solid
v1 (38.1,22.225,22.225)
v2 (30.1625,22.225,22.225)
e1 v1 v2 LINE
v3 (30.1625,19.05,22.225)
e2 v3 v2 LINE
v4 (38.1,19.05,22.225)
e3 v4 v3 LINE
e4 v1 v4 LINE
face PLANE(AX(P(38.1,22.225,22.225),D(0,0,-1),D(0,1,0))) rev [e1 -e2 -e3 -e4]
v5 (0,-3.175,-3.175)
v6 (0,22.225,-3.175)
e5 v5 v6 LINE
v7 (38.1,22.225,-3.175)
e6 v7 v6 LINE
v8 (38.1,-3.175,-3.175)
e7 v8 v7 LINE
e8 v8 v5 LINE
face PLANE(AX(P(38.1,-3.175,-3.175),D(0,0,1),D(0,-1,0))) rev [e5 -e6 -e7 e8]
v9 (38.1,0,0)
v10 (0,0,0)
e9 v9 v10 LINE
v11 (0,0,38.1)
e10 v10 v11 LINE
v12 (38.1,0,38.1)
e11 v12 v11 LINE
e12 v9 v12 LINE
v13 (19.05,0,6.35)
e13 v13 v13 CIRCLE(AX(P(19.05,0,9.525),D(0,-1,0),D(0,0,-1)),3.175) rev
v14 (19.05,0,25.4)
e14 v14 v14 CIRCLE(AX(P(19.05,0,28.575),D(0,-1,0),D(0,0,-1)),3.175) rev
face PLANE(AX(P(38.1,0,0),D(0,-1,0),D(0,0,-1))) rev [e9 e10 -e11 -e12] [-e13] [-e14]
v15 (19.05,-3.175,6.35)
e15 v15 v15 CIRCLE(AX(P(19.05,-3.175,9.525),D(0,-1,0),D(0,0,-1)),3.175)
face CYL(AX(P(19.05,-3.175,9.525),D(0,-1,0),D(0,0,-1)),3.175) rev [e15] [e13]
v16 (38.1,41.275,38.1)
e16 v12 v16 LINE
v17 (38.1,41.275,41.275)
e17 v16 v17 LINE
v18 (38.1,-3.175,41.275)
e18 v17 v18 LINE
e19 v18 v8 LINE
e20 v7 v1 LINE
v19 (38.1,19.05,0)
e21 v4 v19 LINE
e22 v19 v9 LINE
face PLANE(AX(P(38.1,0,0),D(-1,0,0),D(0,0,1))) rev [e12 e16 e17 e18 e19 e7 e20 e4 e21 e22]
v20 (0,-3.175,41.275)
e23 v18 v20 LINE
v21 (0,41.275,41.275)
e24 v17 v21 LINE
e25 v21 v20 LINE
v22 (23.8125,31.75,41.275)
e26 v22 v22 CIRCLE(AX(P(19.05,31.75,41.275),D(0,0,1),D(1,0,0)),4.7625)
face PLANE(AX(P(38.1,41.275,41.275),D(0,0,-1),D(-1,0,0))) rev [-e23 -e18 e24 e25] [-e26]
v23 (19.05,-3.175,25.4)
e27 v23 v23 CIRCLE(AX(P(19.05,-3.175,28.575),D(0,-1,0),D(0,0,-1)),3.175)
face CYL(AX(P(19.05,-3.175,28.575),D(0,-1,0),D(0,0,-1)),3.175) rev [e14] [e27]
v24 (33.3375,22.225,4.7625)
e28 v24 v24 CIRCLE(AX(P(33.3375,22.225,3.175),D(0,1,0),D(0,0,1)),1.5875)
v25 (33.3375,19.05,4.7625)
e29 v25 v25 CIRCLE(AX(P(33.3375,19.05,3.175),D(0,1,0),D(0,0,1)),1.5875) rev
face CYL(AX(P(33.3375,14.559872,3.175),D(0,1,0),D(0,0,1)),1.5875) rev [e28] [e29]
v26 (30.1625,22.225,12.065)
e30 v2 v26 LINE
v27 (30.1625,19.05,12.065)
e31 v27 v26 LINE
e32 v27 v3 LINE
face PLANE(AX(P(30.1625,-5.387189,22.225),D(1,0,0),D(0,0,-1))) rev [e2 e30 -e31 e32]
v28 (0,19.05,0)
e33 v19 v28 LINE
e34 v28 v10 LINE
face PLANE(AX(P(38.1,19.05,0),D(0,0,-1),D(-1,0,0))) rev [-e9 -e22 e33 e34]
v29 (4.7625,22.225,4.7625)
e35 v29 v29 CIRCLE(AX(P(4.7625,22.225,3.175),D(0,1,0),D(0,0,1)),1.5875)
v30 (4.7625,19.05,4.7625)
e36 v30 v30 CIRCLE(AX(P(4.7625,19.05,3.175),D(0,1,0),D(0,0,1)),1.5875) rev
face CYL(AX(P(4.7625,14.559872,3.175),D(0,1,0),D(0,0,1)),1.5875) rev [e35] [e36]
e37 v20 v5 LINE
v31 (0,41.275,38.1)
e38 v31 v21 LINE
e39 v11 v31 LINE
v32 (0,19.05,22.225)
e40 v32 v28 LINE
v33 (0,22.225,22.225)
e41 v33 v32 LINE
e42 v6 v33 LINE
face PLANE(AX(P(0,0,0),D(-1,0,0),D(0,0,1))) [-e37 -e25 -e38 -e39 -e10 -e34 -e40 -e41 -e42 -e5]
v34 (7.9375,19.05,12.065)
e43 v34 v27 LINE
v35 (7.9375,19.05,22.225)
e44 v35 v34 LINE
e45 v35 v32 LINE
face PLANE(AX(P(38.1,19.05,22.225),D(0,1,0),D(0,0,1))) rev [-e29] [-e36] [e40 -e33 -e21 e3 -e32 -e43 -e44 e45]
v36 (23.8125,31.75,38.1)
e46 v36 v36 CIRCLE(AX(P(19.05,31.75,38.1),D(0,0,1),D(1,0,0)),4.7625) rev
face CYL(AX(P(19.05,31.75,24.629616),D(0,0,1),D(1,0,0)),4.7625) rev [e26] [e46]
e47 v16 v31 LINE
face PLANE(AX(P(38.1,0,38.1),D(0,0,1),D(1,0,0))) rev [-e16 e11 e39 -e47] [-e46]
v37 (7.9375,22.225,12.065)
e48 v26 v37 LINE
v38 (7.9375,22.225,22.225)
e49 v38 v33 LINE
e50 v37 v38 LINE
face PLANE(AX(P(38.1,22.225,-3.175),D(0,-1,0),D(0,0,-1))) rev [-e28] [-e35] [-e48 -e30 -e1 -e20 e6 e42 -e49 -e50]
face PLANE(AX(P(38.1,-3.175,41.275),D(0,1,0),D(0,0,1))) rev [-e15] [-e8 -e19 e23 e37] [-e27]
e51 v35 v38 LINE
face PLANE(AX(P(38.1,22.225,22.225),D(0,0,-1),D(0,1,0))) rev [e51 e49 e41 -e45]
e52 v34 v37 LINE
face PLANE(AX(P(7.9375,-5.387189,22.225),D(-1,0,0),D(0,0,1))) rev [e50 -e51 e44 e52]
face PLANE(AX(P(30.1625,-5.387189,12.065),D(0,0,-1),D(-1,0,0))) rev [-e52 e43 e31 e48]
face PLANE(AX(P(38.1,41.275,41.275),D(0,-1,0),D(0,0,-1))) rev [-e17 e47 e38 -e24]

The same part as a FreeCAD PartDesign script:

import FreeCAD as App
import Part
import Sketcher
Q = App.Units.Quantity


def add_polygon(sketch, points):
    """Adds a closed chain of lines whose ends are joined by coincident constraints."""
    first, n = sketch.GeometryCount, len(points)
    for a, b in zip(points, points[1:] + points[:1]):
        sketch.addGeometry(Part.LineSegment(App.Vector(*a, 0), App.Vector(*b, 0)), False)
    for i in range(n):
        sketch.addConstraint(Sketcher.Constraint("Coincident", first + i, 2, first + (i + 1) % n, 1))

doc = App.newDocument("Part")
params = doc.addObject("Spreadsheet::Sheet", "Params")
for row, (alias, value) in enumerate([
    ("sketch1_width", "1 in"),
    ("sketch1_height", "1.5 in"),
    ("sketch1_width2", "1.75 in"),
    ("sketch1_width3", "0.75 in"),
    ("sketch1_width4", "1.625 in"),
    ("pad1_length", "1.5 in"),
    ("sketch2_height", "0.4 in"),
    ("sketch2_width", "0.875 in"),
    ("pocket1_length", "0.125 in"),
    ("sketch3_diameter", "0.125 in"),
    ("pocket2_length", "0.125 in"),
    ("sketch4_diameter", "0.375 in"),
    ("pocket3_length", "0.125 in"),
    ("sketch5_diameter", "0.25 in"),
    ("sketch6_diameter", "0.25 in"),
], start=1):
    params.set(f"A{row}", alias)
    params.set(f"B{row}", "=" + value)
    params.setAlias(f"B{row}", alias)

body = doc.addObject("PartDesign::Body", "Body")

# Sketch on YZ plane
sketch1 = body.newObject("Sketcher::SketchObject", "Sketch")
sketch1.AttachmentSupport = (doc.getObject("YZ_Plane"), [""])
sketch1.MapMode = "FlatFace"
add_polygon(sketch1, [(0, 0), (0, 38.1), (41.275, 38.1), (41.275, 41.275), (-3.175, 41.275), (-3.175, -3.175), (22.225, -3.175), (22.225, 22.225), (19.05, 22.225), (19.05, 0)])  # lines 0-9
sketch1.addConstraint(Sketcher.Constraint("Vertical", 0))
sketch1.addConstraint(Sketcher.Constraint("Horizontal", 1))
sketch1.addConstraint(Sketcher.Constraint("Vertical", 2))
sketch1.addConstraint(Sketcher.Constraint("Horizontal", 3))
sketch1.addConstraint(Sketcher.Constraint("Vertical", 4))
sketch1.addConstraint(Sketcher.Constraint("Horizontal", 5))
sketch1.addConstraint(Sketcher.Constraint("Vertical", 6))
sketch1.addConstraint(Sketcher.Constraint("Horizontal", 7))
sketch1.addConstraint(Sketcher.Constraint("Vertical", 8))
sketch1.addConstraint(Sketcher.Constraint("Horizontal", 9))
sketch1.addConstraint(Sketcher.Constraint("Coincident", 9, 2, -1, 1))
sketch1.addConstraint(Sketcher.Constraint("Equal", 7, 2))
sketch1.addConstraint(Sketcher.Constraint("Equal", 3, 4))
sketch1.addConstraint(Sketcher.Constraint("Equal", 5, 6))
sketch1.addConstraint(Sketcher.Constraint("DistanceX", 5, 1, 5, 2, Q("1 in")))
sketch1.addConstraint(Sketcher.Constraint("DistanceY", 0, 1, 0, 2, Q("1.5 in")))
sketch1.addConstraint(Sketcher.Constraint("DistanceX", 3, 2, 3, 1, Q("1.75 in")))
sketch1.addConstraint(Sketcher.Constraint("DistanceX", 9, 2, 9, 1, Q("0.75 in")))
sketch1.addConstraint(Sketcher.Constraint("DistanceX", 1, 1, 1, 2, Q("1.625 in")))
sketch1.setExpression("Constraints[24]", "Params.sketch1_width")
sketch1.setExpression("Constraints[25]", "Params.sketch1_height")
sketch1.setExpression("Constraints[26]", "Params.sketch1_width2")
sketch1.setExpression("Constraints[27]", "Params.sketch1_width3")
sketch1.setExpression("Constraints[28]", "Params.sketch1_width4")
pad1 = body.newObject("PartDesign::Pad", "Pad")
pad1.Profile = sketch1
pad1.setExpression("Length", "Params.pad1_length")

# Sketch on XZ plane
sketch2 = body.newObject("Sketcher::SketchObject", "Sketch001")
sketch2.AttachmentSupport = (doc.getObject("XZ_Plane"), [""])
sketch2.MapMode = "FlatFace"
sketch2.AttachmentOffset = App.Placement(App.Vector(0, 0, -0.875 * 25.4), App.Rotation())
add_polygon(sketch2, [(7.9375, 12.065), (7.9375, 22.225), (30.1625, 22.225), (30.1625, 12.065)])  # lines 0-3
sketch2.addConstraint(Sketcher.Constraint("Vertical", 0))
sketch2.addConstraint(Sketcher.Constraint("Horizontal", 1))
sketch2.addConstraint(Sketcher.Constraint("Vertical", 2))
sketch2.addConstraint(Sketcher.Constraint("Horizontal", 3))
sketch2.addConstraint(Sketcher.Constraint("DistanceY", 0, 1, 0, 2, Q("0.4 in")))
sketch2.addConstraint(Sketcher.Constraint("DistanceX", 1, 1, 1, 2, Q("0.875 in")))
sketch2.addConstraint(Sketcher.Constraint("DistanceX", -1, 1, 0, 2, Q("0.3125 in")))
sketch2.addConstraint(Sketcher.Constraint("DistanceY", -1, 1, 0, 2, Q("0.875 in")))
sketch2.setExpression("Constraints[8]", "Params.sketch2_height")
sketch2.setExpression("Constraints[9]", "Params.sketch2_width")
pocket1 = body.newObject("PartDesign::Pocket", "Pocket")
pocket1.Profile = sketch2
pocket1.setExpression("Length", "Params.pocket1_length")
pocket1.Reversed = True

# Sketch on XZ plane
sketch3 = body.newObject("Sketcher::SketchObject", "Sketch002")
sketch3.AttachmentSupport = (doc.getObject("XZ_Plane"), [""])
sketch3.MapMode = "FlatFace"
sketch3.AttachmentOffset = App.Placement(App.Vector(0, 0, -0.875 * 25.4), App.Rotation())
sketch3.addGeometry(Part.Circle(App.Vector(33.3375, 3.175, 0), App.Vector(0, 0, 1), 1.5875), False)
sketch3.addGeometry(Part.Circle(App.Vector(4.7625, 3.175, 0), App.Vector(0, 0, 1), 1.5875), False)
sketch3.addConstraint(Sketcher.Constraint("Equal", 0, 1))
sketch3.addConstraint(Sketcher.Constraint("Horizontal", 0, 3, 1, 3))
sketch3.addConstraint(Sketcher.Constraint("Diameter", 0, Q("0.125 in")))
sketch3.addConstraint(Sketcher.Constraint("DistanceX", -1, 1, 0, 3, Q("1.3125 in")))
sketch3.addConstraint(Sketcher.Constraint("DistanceY", -1, 1, 0, 3, Q("0.125 in")))
sketch3.addConstraint(Sketcher.Constraint("DistanceX", -1, 1, 1, 3, Q("0.1875 in")))
sketch3.setExpression("Constraints[2]", "Params.sketch3_diameter")
pocket2 = body.newObject("PartDesign::Pocket", "Pocket001")
pocket2.Profile = sketch3
pocket2.setExpression("Length", "Params.pocket2_length")
pocket2.Reversed = True

# Sketch on XY plane
sketch4 = body.newObject("Sketcher::SketchObject", "Sketch003")
sketch4.AttachmentSupport = (doc.getObject("XY_Plane"), [""])
sketch4.MapMode = "FlatFace"
sketch4.AttachmentOffset = App.Placement(App.Vector(0, 0, 1.625 * 25.4), App.Rotation())
sketch4.addGeometry(Part.Circle(App.Vector(19.05, 31.75, 0), App.Vector(0, 0, 1), 4.7625), False)
sketch4.addConstraint(Sketcher.Constraint("Diameter", 0, Q("0.375 in")))
sketch4.addConstraint(Sketcher.Constraint("DistanceX", -1, 1, 0, 3, Q("0.75 in")))
sketch4.addConstraint(Sketcher.Constraint("DistanceY", -1, 1, 0, 3, Q("1.25 in")))
sketch4.setExpression("Constraints[0]", "Params.sketch4_diameter")
pocket3 = body.newObject("PartDesign::Pocket", "Pocket002")
pocket3.Profile = sketch4
pocket3.setExpression("Length", "Params.pocket3_length")

# Sketch on XZ plane
sketch5 = body.newObject("Sketcher::SketchObject", "Sketch004")
sketch5.AttachmentSupport = (doc.getObject("XZ_Plane"), [""])
sketch5.MapMode = "FlatFace"
sketch5.AttachmentOffset = App.Placement(App.Vector(0, 0, 0.125 * 25.4), App.Rotation())
sketch5.addGeometry(Part.Circle(App.Vector(19.05, 28.575, 0), App.Vector(0, 0, 1), 3.175), False)
sketch5.addConstraint(Sketcher.Constraint("Diameter", 0, Q("0.25 in")))
sketch5.addConstraint(Sketcher.Constraint("DistanceX", -1, 1, 0, 3, Q("0.75 in")))
sketch5.addConstraint(Sketcher.Constraint("DistanceY", -1, 1, 0, 3, Q("1.125 in")))
sketch5.setExpression("Constraints[0]", "Params.sketch5_diameter")
pocket4 = body.newObject("PartDesign::Pocket", "Pocket003")
pocket4.Profile = sketch5
pocket4.Type = "UpToFirst"

# Sketch on XZ plane
sketch6 = body.newObject("Sketcher::SketchObject", "Sketch005")
sketch6.AttachmentSupport = (doc.getObject("XZ_Plane"), [""])
sketch6.MapMode = "FlatFace"
sketch6.AttachmentOffset = App.Placement(App.Vector(0, 0, 0.125 * 25.4), App.Rotation())
sketch6.addGeometry(Part.Circle(App.Vector(19.05, 9.525, 0), App.Vector(0, 0, 1), 3.175), False)
sketch6.addConstraint(Sketcher.Constraint("Diameter", 0, Q("0.25 in")))
sketch6.addConstraint(Sketcher.Constraint("DistanceX", -1, 1, 0, 3, Q("0.75 in")))
sketch6.addConstraint(Sketcher.Constraint("DistanceY", -1, 1, 0, 3, Q("0.375 in")))
sketch6.setExpression("Constraints[0]", "Params.sketch6_diameter")
pocket5 = body.newObject("PartDesign::Pocket", "Pocket004")
pocket5.Profile = sketch6
pocket5.Type = "UpToFirst"

doc.recompute()
